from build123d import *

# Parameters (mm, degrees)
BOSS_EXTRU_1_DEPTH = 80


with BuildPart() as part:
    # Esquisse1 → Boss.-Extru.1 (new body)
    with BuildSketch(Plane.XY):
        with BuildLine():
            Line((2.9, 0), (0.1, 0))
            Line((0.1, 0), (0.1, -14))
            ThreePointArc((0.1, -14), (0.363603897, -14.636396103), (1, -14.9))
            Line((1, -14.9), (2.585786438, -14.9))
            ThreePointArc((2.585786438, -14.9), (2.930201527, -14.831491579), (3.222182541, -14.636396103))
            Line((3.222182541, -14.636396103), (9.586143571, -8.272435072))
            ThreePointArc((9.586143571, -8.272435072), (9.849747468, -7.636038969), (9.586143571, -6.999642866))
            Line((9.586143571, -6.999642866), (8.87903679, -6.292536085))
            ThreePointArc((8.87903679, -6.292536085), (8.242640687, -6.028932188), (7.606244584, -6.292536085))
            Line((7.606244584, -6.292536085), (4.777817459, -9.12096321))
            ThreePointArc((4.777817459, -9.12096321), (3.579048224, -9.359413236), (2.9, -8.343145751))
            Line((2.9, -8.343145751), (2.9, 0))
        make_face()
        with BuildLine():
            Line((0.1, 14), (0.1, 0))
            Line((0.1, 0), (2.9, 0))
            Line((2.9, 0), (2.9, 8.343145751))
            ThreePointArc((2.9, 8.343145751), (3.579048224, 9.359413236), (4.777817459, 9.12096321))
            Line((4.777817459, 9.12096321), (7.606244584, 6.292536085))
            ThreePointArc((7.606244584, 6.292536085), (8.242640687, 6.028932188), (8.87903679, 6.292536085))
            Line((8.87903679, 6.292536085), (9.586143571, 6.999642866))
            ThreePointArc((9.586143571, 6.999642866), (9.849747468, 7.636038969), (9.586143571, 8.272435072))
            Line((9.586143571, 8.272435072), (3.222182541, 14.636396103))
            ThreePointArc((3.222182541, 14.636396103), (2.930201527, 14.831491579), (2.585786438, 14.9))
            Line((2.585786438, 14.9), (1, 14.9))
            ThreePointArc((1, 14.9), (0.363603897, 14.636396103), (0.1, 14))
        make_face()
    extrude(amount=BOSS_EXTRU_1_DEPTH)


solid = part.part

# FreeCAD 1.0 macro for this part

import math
import FreeCAD as App
import Part
import Sketcher
Q = App.Units.Quantity

doc = App.newDocument("Part")
body = doc.addObject("PartDesign::Body", "Body")

sketch1 = body.newObject("Sketcher::SketchObject", "Sketch")
sketch1.AttachmentSupport = (doc.getObject("XY_Plane"), [""])
sketch1.MapMode = "FlatFace"
sketch1.addGeometry([
    Part.ArcOfCircle(Part.Circle(App.Vector(1, -14, 0), App.Vector(0, 0, 1), 0.9), math.radians(180), math.radians(270)),
    Part.LineSegment(App.Vector(1, -14.9, 0), App.Vector(2.6, -14.9, 0)),
    Part.ArcOfCircle(Part.Circle(App.Vector(2.6, -14, 0), App.Vector(0, 0, 1), 0.9), math.radians(-90), math.radians(-45)),
    Part.LineSegment(App.Vector(3.2, -14.6, 0), App.Vector(9.6, -8.3, 0)),
    Part.ArcOfCircle(Part.Circle(App.Vector(8.9, -7.6, 0), App.Vector(0, 0, 1), 0.9), math.radians(-45), math.radians(45)),
    Part.LineSegment(App.Vector(9.6, -7, 0), App.Vector(8.9, -6.3, 0)),
    Part.ArcOfCircle(Part.Circle(App.Vector(8.2, -6.9, 0), App.Vector(0, 0, 1), 0.9), math.radians(45), math.radians(135)),
    Part.LineSegment(App.Vector(7.6, -6.3, 0), App.Vector(4.8, -9.1, 0)),
    Part.ArcOfCircle(Part.Circle(App.Vector(4, -8.3, 0), App.Vector(0, 0, 1), 1.1), math.radians(-180), math.radians(-45)),
    Part.LineSegment(App.Vector(2.9, -8.3, 0), App.Vector(2.9, 8.3, 0)),
    Part.ArcOfCircle(Part.Circle(App.Vector(4, 8.3, 0), App.Vector(0, 0, 1), 1.1), math.radians(45), math.radians(180)),
    Part.LineSegment(App.Vector(4.8, 9.1, 0), App.Vector(7.6, 6.3, 0)),
    Part.ArcOfCircle(Part.Circle(App.Vector(8.2, 6.9, 0), App.Vector(0, 0, 1), 0.9), math.radians(-135), math.radians(-45)),
    Part.LineSegment(App.Vector(8.9, 6.3, 0), App.Vector(9.6, 7, 0)),
    Part.ArcOfCircle(Part.Circle(App.Vector(8.9, 7.6, 0), App.Vector(0, 0, 1), 0.9), math.radians(-45), math.radians(45)),
    Part.LineSegment(App.Vector(9.6, 8.3, 0), App.Vector(3.2, 14.6, 0)),
    Part.ArcOfCircle(Part.Circle(App.Vector(2.6, 14, 0), App.Vector(0, 0, 1), 0.9), math.radians(45), math.radians(90)),
    Part.LineSegment(App.Vector(2.6, 14.9, 0), App.Vector(1, 14.9, 0)),
    Part.ArcOfCircle(Part.Circle(App.Vector(1, 14, 0), App.Vector(0, 0, 1), 0.9), math.radians(90), math.radians(180)),
    Part.LineSegment(App.Vector(0.1, 14, 0), App.Vector(0.1, -14, 0)),
], False)
sketch1.addConstraint([
    Sketcher.Constraint("Tangent", 0, 2, 1, 1),
    Sketcher.Constraint("Tangent", 1, 2, 2, 1),
    Sketcher.Constraint("Tangent", 2, 2, 3, 1),
    Sketcher.Constraint("Tangent", 3, 2, 4, 1),
    Sketcher.Constraint("Tangent", 4, 2, 5, 1),
    Sketcher.Constraint("Tangent", 5, 2, 6, 1),
    Sketcher.Constraint("Tangent", 6, 2, 7, 1),
    Sketcher.Constraint("Tangent", 7, 2, 8, 2),
    Sketcher.Constraint("Tangent", 8, 1, 9, 1),
    Sketcher.Constraint("Tangent", 9, 2, 10, 2),
    Sketcher.Constraint("Tangent", 10, 1, 11, 1),
    Sketcher.Constraint("Tangent", 11, 2, 12, 1),
    Sketcher.Constraint("Tangent", 12, 2, 13, 1),
    Sketcher.Constraint("Tangent", 13, 2, 14, 1),
    Sketcher.Constraint("Tangent", 14, 2, 15, 1),
    Sketcher.Constraint("Tangent", 15, 2, 16, 1),
    Sketcher.Constraint("Tangent", 16, 2, 17, 1),
    Sketcher.Constraint("Tangent", 17, 2, 18, 1),
    Sketcher.Constraint("Tangent", 18, 2, 19, 1),
    Sketcher.Constraint("Tangent", 19, 2, 0, 1),
    Sketcher.Constraint("Horizontal", 1),
    Sketcher.Constraint("Vertical", 9),
    Sketcher.Constraint("Horizontal", 17),
    Sketcher.Constraint("Vertical", 19),
    Sketcher.Constraint("Equal", 0, 2),
    Sketcher.Constraint("Equal", 2, 4),
    Sketcher.Constraint("Equal", 4, 6),
    Sketcher.Constraint("Equal", 8, 10),
    Sketcher.Constraint("Equal", 6, 12),
    Sketcher.Constraint("Equal", 12, 14),
    Sketcher.Constraint("Equal", 14, 16),
    Sketcher.Constraint("Equal", 16, 18),
    Sketcher.Constraint("Symmetric", 6, 3, 12, 3, -1),
    Sketcher.Constraint("Symmetric", 4, 3, 14, 3, -1),
    Sketcher.Constraint("Symmetric", 2, 3, 16, 3, -1),
    Sketcher.Constraint("Perpendicular", 3, 5),
    Sketcher.Constraint("Perpendicular", 5, 7),
    Sketcher.Constraint("Perpendicular", 7, 11),
    Sketcher.Constraint("Perpendicular", 11, 13),
    Sketcher.Constraint("Radius", 0, Q("0.9 mm")),
    Sketcher.Constraint("Radius", 8, Q("1.1 mm")),
    Sketcher.Constraint("DistanceY", 19, 2, 19, 1, Q("28 mm")),
    Sketcher.Constraint("Distance", 3, Q("9 mm")),
    Sketcher.Constraint("Distance", 5, Q("1 mm")),
    Sketcher.Constraint("Distance", 7, Q("4 mm")),
    Sketcher.Constraint("DistanceX", -1, 1, 0, 3, Q("1 mm")),
    Sketcher.Constraint("DistanceX", -1, 1, 8, 3, Q("4 mm")),
])
pad1 = body.newObject("PartDesign::Pad", "Pad")
pad1.Profile = sketch1
pad1.Length = 80

doc.recompute()
